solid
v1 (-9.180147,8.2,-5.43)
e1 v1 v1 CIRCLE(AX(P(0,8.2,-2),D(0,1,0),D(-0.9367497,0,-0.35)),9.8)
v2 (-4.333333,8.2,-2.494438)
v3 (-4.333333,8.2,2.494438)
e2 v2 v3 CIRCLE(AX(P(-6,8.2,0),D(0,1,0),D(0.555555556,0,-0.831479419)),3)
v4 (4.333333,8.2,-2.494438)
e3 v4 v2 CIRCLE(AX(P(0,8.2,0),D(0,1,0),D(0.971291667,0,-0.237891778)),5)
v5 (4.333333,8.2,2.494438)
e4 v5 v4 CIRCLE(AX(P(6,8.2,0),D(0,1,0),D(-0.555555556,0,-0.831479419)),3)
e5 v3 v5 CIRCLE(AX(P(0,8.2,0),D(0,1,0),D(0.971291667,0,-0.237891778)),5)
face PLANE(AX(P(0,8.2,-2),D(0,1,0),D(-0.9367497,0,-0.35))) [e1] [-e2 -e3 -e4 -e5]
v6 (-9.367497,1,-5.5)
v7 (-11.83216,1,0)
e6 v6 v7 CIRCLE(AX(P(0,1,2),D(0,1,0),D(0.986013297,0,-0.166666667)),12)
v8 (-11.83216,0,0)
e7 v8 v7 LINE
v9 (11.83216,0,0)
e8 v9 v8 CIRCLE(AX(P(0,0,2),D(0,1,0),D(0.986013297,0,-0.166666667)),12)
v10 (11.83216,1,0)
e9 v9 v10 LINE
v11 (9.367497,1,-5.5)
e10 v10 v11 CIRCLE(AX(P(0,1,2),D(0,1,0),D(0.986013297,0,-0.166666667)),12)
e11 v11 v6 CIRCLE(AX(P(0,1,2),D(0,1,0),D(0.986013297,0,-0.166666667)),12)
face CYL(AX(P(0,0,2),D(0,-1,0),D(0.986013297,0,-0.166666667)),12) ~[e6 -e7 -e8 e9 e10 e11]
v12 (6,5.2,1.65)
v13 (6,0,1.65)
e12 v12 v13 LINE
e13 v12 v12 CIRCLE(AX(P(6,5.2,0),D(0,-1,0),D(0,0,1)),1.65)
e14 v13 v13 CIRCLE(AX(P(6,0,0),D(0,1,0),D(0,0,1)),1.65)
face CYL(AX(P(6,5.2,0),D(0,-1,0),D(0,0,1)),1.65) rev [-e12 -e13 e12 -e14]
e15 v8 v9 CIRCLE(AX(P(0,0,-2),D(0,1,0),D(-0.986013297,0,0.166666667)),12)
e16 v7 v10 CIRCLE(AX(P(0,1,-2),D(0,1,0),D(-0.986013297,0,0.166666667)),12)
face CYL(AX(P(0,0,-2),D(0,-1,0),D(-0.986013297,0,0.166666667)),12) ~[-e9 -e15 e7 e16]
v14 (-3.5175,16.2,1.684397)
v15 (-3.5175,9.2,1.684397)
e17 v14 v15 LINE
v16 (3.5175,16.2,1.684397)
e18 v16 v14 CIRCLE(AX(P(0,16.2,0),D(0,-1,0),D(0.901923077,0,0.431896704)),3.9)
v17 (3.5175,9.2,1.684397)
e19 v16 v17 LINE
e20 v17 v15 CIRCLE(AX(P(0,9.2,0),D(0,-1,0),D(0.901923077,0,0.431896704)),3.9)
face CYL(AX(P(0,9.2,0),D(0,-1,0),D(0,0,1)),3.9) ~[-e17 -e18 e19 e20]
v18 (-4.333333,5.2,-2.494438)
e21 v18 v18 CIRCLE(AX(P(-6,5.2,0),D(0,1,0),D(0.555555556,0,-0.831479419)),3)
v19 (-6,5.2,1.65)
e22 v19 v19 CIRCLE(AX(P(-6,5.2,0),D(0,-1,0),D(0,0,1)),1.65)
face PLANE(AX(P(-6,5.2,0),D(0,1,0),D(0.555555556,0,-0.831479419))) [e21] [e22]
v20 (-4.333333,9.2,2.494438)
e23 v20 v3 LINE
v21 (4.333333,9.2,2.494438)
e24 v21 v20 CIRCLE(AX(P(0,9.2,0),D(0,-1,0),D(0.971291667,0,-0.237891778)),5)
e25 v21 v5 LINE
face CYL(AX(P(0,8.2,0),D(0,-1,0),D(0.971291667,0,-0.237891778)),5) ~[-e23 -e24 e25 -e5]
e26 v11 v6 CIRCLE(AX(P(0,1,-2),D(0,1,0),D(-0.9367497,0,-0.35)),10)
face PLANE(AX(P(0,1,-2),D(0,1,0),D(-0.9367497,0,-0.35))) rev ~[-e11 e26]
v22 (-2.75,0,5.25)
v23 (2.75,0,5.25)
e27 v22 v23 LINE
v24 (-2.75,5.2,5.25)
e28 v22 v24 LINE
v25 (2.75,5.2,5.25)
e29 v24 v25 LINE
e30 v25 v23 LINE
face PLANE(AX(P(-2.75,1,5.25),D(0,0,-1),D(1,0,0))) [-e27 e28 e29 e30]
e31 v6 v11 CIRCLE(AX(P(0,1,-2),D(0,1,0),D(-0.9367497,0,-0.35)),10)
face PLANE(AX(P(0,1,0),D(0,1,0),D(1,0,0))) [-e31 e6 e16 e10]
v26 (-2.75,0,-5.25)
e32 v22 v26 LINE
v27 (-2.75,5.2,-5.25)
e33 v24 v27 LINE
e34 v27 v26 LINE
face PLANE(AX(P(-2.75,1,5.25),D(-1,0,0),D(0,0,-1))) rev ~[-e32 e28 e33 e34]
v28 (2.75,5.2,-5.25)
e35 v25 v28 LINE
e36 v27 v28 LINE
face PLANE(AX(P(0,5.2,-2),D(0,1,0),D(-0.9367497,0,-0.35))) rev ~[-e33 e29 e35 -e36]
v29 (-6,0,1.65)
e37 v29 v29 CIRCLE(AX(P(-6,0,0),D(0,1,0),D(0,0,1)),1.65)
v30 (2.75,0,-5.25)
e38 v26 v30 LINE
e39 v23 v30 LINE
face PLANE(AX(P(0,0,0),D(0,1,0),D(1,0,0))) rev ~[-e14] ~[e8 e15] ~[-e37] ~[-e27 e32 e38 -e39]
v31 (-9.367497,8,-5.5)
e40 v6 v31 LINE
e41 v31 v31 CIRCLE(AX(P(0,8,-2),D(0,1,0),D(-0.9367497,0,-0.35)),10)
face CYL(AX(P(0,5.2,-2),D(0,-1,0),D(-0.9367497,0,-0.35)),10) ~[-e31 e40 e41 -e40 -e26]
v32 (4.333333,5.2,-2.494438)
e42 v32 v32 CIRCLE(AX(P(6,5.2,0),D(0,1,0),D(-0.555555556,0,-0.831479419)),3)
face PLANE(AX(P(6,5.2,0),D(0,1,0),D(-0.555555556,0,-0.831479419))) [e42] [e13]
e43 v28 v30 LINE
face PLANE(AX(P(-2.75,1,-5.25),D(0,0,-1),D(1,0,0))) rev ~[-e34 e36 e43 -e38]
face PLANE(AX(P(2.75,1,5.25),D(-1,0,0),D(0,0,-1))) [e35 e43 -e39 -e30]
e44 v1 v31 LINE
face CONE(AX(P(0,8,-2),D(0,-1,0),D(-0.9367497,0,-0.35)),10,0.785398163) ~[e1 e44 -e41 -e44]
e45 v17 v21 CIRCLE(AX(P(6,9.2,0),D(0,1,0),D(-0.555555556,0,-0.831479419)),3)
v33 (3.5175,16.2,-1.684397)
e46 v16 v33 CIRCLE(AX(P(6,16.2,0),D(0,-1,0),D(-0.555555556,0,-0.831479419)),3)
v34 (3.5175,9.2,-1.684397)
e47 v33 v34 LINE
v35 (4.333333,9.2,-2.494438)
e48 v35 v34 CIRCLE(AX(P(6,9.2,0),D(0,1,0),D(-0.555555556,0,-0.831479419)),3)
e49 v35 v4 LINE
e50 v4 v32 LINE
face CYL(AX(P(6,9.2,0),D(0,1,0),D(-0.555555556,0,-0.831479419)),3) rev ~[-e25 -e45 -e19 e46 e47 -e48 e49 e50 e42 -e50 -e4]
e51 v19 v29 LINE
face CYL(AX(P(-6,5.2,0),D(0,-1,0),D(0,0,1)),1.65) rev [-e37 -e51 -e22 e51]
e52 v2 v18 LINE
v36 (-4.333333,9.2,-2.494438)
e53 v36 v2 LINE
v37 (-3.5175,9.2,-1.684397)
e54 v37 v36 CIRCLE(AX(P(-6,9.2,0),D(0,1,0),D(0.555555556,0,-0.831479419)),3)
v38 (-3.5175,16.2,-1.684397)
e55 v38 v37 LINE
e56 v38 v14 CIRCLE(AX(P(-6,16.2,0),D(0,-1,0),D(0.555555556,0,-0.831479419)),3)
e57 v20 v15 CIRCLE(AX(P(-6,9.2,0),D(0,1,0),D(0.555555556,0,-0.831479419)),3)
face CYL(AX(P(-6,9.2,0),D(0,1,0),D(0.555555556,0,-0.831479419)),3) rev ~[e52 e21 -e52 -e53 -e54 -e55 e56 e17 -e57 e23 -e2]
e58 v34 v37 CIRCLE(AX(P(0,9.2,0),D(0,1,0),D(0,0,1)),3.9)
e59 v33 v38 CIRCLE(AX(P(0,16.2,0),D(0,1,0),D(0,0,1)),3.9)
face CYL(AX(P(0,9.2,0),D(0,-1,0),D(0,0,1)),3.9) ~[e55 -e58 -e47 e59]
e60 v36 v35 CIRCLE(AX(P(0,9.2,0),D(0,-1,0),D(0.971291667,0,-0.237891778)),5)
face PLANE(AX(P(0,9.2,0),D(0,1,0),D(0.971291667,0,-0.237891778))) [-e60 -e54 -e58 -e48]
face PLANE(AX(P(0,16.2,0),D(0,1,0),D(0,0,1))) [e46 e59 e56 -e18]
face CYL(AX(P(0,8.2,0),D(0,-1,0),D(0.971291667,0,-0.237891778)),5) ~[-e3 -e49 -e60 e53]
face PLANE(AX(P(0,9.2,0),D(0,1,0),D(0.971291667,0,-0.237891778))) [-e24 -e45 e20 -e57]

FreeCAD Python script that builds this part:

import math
import FreeCAD as App
import Part
import Sketcher

V = App.Vector
Q = App.Units.Quantity


def edges_at(feature, points):
    """Names of the edges that pass closest to the given points."""
    edges = feature.Shape.Edges
    near = lambda p: min(range(len(edges)), key=lambda i: edges[i].distToShape(Part.Vertex(*p))[0])
    return sorted({f"Edge{near(p) + 1}" for p in points})


def add_polygon(sketch, points):
    """Adds a closed chain of lines whose ends are joined by coincident constraints."""
    first, n = sketch.GeometryCount, len(points)
    for a, b in zip(points, points[1:] + points[:1]):
        sketch.addGeometry(Part.LineSegment(App.Vector(*a, 0), App.Vector(*b, 0)), False)
    for i in range(n):
        sketch.addConstraint(Sketcher.Constraint("Coincident", first + i, 2, first + (i + 1) % n, 1))

doc = App.newDocument("Part")
body = doc.addObject("PartDesign::Body", "Body")

sketch1 = body.newObject("Sketcher::SketchObject", "Sketch")
sketch1.AttachmentSupport = (doc.getObject("XZ_Plane"), [""])
sketch1.MapMode = "FlatFace"
sketch1.addGeometry(Part.ArcOfCircle(Part.Circle(V(0, -2, 0), V(0, 0, 1), 12), math.radians(10), math.radians(170)), False)
sketch1.addGeometry(Part.ArcOfCircle(Part.Circle(V(0, 2, 0), V(0, 0, 1), 12), math.radians(-170), math.radians(-10)), False)
sketch1.addGeometry(Part.Circle(V(-6, 0, 0), V(0, 0, 1), 1.6), False)
add_polygon(sketch1, [(2.8, 5.2), (-2.8, 5.2), (-2.8, -5.2), (2.8, -5.2)])
sketch1.addGeometry(Part.Circle(V(6, 0, 0), V(0, 0, 1), 1.6), False)
sketch1.addConstraint(Sketcher.Constraint("Coincident", 0, 1, 1, 2))
sketch1.addConstraint(Sketcher.Constraint("Coincident", 1, 1, 0, 2))
sketch1.addConstraint(Sketcher.Constraint("Horizontal", 3))
sketch1.addConstraint(Sketcher.Constraint("Vertical", 4))
sketch1.addConstraint(Sketcher.Constraint("Horizontal", 5))
sketch1.addConstraint(Sketcher.Constraint("Vertical", 6))
sketch1.addConstraint(Sketcher.Constraint("Equal", 0, 1))
sketch1.addConstraint(Sketcher.Constraint("Equal", 2, 7))
sketch1.addConstraint(Sketcher.Constraint("Symmetric", 0, 3, 1, 3, -1, 1))
sketch1.addConstraint(Sketcher.Constraint("Symmetric", 2, 3, 7, 3, -1, 1))
sketch1.addConstraint(Sketcher.Constraint("Symmetric", 3, 2, 5, 2, -1, 1))
sketch1.addConstraint(Sketcher.Constraint("PointOnObject", 0, 3, -2))
sketch1.addConstraint(Sketcher.Constraint("PointOnObject", 2, 3, -1))
sketch1.addConstraint(Sketcher.Constraint("Radius", 0, Q("12 mm")))
sketch1.addConstraint(Sketcher.Constraint("Diameter", 2, Q("3.3 mm")))
sketch1.addConstraint(Sketcher.Constraint("DistanceX", 3, 2, 3, 1, Q("5.5 mm")))
sketch1.addConstraint(Sketcher.Constraint("DistanceY", 4, 2, 4, 1, Q("10.5 mm")))
sketch1.addConstraint(Sketcher.Constraint("DistanceY", 0, 3, -1, 1, Q("2 mm")))
sketch1.addConstraint(Sketcher.Constraint("DistanceX", 2, 3, -1, 1, Q("6 mm")))
pad1 = body.newObject("PartDesign::Pad", "Pad")
pad1.Profile = sketch1
pad1.Length = 1
pad1.Reversed = True

sketch2 = body.newObject("Sketcher::SketchObject", "Sketch001")
sketch2.AttachmentSupport = (doc.getObject("XZ_Plane"), [""])
sketch2.MapMode = "FlatFace"
sketch2.AttachmentOffset = App.Placement(V(0, 0, -1), App.Rotation())
sketch2.addGeometry(Part.Circle(V(0, -2, 0), V(0, 0, 1), 10), False)
sketch2.addGeometry(Part.Circle(V(6, 0, 0), V(0, 0, 1), 1.6), False)
add_polygon(sketch2, [(2.8, 5.2), (-2.8, 5.2), (-2.8, -5.2), (2.8, -5.2)])
sketch2.addGeometry(Part.Circle(V(-6, 0, 0), V(0, 0, 1), 1.6), False)
sketch2.addConstraint(Sketcher.Constraint("Horizontal", 2))
sketch2.addConstraint(Sketcher.Constraint("Vertical", 3))
sketch2.addConstraint(Sketcher.Constraint("Horizontal", 4))
sketch2.addConstraint(Sketcher.Constraint("Vertical", 5))
sketch2.addConstraint(Sketcher.Constraint("Equal", 1, 6))
sketch2.addConstraint(Sketcher.Constraint("Symmetric", 1, 3, 6, 3, -1, 1))
sketch2.addConstraint(Sketcher.Constraint("Symmetric", 2, 2, 4, 2, -1, 1))
sketch2.addConstraint(Sketcher.Constraint("PointOnObject", 0, 3, -2))
sketch2.addConstraint(Sketcher.Constraint("PointOnObject", 1, 3, -1))
sketch2.addConstraint(Sketcher.Constraint("Diameter", 0, Q("20 mm")))
sketch2.addConstraint(Sketcher.Constraint("Diameter", 1, Q("3.3 mm")))
sketch2.addConstraint(Sketcher.Constraint("DistanceX", 2, 2, 2, 1, Q("5.5 mm")))
sketch2.addConstraint(Sketcher.Constraint("DistanceY", 3, 2, 3, 1, Q("10.5 mm")))
sketch2.addConstraint(Sketcher.Constraint("DistanceY", 0, 3, -1, 1, Q("2 mm")))
sketch2.addConstraint(Sketcher.Constraint("DistanceX", -1, 1, 1, 3, Q("6 mm")))
pad2 = body.newObject("PartDesign::Pad", "Pad001")
pad2.Profile = sketch2
pad2.Length = 4.2
pad2.Reversed = True

sketch3 = body.newObject("Sketcher::SketchObject", "Sketch002")
sketch3.AttachmentSupport = (doc.getObject("XZ_Plane"), [""])
sketch3.MapMode = "FlatFace"
sketch3.AttachmentOffset = App.Placement(V(0, 0, -5.2), App.Rotation())
sketch3.addGeometry(Part.Circle(V(0, -2, 0), V(0, 0, 1), 10), False)
sketch3.addGeometry(Part.Circle(V(6, 0, 0), V(0, 0, 1), 1.6), False)
sketch3.addGeometry(Part.Circle(V(-6, 0, 0), V(0, 0, 1), 1.6), False)
sketch3.addConstraint(Sketcher.Constraint("Equal", 1, 2))
sketch3.addConstraint(Sketcher.Constraint("Symmetric", 1, 3, 2, 3, -1, 1))
sketch3.addConstraint(Sketcher.Constraint("PointOnObject", 0, 3, -2))
sketch3.addConstraint(Sketcher.Constraint("PointOnObject", 1, 3, -1))
sketch3.addConstraint(Sketcher.Constraint("Diameter", 0, Q("20 mm")))
sketch3.addConstraint(Sketcher.Constraint("Diameter", 1, Q("3.3 mm")))
sketch3.addConstraint(Sketcher.Constraint("DistanceY", 0, 3, -1, 1, Q("2 mm")))
sketch3.addConstraint(Sketcher.Constraint("DistanceX", -1, 1, 1, 3, Q("6 mm")))
pad3 = body.newObject("PartDesign::Pad", "Pad002")
pad3.Profile = sketch3
pad3.Length = 3
pad3.Reversed = True

sketch4 = body.newObject("Sketcher::SketchObject", "Sketch003")
sketch4.AttachmentSupport = (doc.getObject("XZ_Plane"), [""])
sketch4.MapMode = "FlatFace"
sketch4.AttachmentOffset = App.Placement(V(0, 0, -8.2), App.Rotation())
sketch4.addGeometry(Part.Circle(V(0, 0, 0), V(0, 0, 1), 5), False)
sketch4.addConstraint(Sketcher.Constraint("Coincident", 0, 3, -1, 1))
sketch4.addConstraint(Sketcher.Constraint("Diameter", 0, Q("10 mm")))
pad4 = body.newObject("PartDesign::Pad", "Pad003")
pad4.Profile = sketch4
pad4.Length = 1
pad4.Reversed = True

sketch5 = body.newObject("Sketcher::SketchObject", "Sketch004")
sketch5.AttachmentSupport = (doc.getObject("XZ_Plane"), [""])
sketch5.MapMode = "FlatFace"
sketch5.AttachmentOffset = App.Placement(V(0, 0, -9.2), App.Rotation())
sketch5.addGeometry(Part.Circle(V(0, 0, 0), V(0, 0, 1), 3.9), False)
sketch5.addConstraint(Sketcher.Constraint("Coincident", 0, 3, -1, 1))
sketch5.addConstraint(Sketcher.Constraint("Diameter", 0, Q("7.8 mm")))
pad5 = body.newObject("PartDesign::Pad", "Pad004")
pad5.Profile = sketch5
pad5.Length = 7
pad5.Reversed = True

sketch6 = body.newObject("Sketcher::SketchObject", "Sketch005")
sketch6.AttachmentSupport = (doc.getObject("XZ_Plane"), [""])
sketch6.MapMode = "FlatFace"
sketch6.AttachmentOffset = App.Placement(V(0, 0, -9.2), App.Rotation())
sketch6.addGeometry(Part.Circle(V(-6, 0, 0), V(0, 0, 1), 3), False)
sketch6.addGeometry(Part.Circle(V(6, 0, 0), V(0, 0, 1), 3), False)
sketch6.addConstraint(Sketcher.Constraint("Equal", 0, 1))
sketch6.addConstraint(Sketcher.Constraint("Symmetric", 0, 3, 1, 3, -1, 1))
sketch6.addConstraint(Sketcher.Constraint("PointOnObject", 0, 3, -1))
sketch6.addConstraint(Sketcher.Constraint("Diameter", 0, Q("6 mm")))
sketch6.addConstraint(Sketcher.Constraint("DistanceX", 0, 3, -1, 1, Q("6 mm")))
pocket1 = body.newObject("PartDesign::Pocket", "Pocket")
pocket1.Profile = sketch6
pocket1.Type = "TwoLengths"
pocket1.Length = 10
pocket1.Length2 = 4
doc.recompute()

chamfer = body.newObject("PartDesign::Chamfer", "Chamfer")
chamfer.Base = (pocket1, edges_at(pocket1, [(9.367, 8.2, 1.5)]))
chamfer.Size = 0.2

doc.recompute()
